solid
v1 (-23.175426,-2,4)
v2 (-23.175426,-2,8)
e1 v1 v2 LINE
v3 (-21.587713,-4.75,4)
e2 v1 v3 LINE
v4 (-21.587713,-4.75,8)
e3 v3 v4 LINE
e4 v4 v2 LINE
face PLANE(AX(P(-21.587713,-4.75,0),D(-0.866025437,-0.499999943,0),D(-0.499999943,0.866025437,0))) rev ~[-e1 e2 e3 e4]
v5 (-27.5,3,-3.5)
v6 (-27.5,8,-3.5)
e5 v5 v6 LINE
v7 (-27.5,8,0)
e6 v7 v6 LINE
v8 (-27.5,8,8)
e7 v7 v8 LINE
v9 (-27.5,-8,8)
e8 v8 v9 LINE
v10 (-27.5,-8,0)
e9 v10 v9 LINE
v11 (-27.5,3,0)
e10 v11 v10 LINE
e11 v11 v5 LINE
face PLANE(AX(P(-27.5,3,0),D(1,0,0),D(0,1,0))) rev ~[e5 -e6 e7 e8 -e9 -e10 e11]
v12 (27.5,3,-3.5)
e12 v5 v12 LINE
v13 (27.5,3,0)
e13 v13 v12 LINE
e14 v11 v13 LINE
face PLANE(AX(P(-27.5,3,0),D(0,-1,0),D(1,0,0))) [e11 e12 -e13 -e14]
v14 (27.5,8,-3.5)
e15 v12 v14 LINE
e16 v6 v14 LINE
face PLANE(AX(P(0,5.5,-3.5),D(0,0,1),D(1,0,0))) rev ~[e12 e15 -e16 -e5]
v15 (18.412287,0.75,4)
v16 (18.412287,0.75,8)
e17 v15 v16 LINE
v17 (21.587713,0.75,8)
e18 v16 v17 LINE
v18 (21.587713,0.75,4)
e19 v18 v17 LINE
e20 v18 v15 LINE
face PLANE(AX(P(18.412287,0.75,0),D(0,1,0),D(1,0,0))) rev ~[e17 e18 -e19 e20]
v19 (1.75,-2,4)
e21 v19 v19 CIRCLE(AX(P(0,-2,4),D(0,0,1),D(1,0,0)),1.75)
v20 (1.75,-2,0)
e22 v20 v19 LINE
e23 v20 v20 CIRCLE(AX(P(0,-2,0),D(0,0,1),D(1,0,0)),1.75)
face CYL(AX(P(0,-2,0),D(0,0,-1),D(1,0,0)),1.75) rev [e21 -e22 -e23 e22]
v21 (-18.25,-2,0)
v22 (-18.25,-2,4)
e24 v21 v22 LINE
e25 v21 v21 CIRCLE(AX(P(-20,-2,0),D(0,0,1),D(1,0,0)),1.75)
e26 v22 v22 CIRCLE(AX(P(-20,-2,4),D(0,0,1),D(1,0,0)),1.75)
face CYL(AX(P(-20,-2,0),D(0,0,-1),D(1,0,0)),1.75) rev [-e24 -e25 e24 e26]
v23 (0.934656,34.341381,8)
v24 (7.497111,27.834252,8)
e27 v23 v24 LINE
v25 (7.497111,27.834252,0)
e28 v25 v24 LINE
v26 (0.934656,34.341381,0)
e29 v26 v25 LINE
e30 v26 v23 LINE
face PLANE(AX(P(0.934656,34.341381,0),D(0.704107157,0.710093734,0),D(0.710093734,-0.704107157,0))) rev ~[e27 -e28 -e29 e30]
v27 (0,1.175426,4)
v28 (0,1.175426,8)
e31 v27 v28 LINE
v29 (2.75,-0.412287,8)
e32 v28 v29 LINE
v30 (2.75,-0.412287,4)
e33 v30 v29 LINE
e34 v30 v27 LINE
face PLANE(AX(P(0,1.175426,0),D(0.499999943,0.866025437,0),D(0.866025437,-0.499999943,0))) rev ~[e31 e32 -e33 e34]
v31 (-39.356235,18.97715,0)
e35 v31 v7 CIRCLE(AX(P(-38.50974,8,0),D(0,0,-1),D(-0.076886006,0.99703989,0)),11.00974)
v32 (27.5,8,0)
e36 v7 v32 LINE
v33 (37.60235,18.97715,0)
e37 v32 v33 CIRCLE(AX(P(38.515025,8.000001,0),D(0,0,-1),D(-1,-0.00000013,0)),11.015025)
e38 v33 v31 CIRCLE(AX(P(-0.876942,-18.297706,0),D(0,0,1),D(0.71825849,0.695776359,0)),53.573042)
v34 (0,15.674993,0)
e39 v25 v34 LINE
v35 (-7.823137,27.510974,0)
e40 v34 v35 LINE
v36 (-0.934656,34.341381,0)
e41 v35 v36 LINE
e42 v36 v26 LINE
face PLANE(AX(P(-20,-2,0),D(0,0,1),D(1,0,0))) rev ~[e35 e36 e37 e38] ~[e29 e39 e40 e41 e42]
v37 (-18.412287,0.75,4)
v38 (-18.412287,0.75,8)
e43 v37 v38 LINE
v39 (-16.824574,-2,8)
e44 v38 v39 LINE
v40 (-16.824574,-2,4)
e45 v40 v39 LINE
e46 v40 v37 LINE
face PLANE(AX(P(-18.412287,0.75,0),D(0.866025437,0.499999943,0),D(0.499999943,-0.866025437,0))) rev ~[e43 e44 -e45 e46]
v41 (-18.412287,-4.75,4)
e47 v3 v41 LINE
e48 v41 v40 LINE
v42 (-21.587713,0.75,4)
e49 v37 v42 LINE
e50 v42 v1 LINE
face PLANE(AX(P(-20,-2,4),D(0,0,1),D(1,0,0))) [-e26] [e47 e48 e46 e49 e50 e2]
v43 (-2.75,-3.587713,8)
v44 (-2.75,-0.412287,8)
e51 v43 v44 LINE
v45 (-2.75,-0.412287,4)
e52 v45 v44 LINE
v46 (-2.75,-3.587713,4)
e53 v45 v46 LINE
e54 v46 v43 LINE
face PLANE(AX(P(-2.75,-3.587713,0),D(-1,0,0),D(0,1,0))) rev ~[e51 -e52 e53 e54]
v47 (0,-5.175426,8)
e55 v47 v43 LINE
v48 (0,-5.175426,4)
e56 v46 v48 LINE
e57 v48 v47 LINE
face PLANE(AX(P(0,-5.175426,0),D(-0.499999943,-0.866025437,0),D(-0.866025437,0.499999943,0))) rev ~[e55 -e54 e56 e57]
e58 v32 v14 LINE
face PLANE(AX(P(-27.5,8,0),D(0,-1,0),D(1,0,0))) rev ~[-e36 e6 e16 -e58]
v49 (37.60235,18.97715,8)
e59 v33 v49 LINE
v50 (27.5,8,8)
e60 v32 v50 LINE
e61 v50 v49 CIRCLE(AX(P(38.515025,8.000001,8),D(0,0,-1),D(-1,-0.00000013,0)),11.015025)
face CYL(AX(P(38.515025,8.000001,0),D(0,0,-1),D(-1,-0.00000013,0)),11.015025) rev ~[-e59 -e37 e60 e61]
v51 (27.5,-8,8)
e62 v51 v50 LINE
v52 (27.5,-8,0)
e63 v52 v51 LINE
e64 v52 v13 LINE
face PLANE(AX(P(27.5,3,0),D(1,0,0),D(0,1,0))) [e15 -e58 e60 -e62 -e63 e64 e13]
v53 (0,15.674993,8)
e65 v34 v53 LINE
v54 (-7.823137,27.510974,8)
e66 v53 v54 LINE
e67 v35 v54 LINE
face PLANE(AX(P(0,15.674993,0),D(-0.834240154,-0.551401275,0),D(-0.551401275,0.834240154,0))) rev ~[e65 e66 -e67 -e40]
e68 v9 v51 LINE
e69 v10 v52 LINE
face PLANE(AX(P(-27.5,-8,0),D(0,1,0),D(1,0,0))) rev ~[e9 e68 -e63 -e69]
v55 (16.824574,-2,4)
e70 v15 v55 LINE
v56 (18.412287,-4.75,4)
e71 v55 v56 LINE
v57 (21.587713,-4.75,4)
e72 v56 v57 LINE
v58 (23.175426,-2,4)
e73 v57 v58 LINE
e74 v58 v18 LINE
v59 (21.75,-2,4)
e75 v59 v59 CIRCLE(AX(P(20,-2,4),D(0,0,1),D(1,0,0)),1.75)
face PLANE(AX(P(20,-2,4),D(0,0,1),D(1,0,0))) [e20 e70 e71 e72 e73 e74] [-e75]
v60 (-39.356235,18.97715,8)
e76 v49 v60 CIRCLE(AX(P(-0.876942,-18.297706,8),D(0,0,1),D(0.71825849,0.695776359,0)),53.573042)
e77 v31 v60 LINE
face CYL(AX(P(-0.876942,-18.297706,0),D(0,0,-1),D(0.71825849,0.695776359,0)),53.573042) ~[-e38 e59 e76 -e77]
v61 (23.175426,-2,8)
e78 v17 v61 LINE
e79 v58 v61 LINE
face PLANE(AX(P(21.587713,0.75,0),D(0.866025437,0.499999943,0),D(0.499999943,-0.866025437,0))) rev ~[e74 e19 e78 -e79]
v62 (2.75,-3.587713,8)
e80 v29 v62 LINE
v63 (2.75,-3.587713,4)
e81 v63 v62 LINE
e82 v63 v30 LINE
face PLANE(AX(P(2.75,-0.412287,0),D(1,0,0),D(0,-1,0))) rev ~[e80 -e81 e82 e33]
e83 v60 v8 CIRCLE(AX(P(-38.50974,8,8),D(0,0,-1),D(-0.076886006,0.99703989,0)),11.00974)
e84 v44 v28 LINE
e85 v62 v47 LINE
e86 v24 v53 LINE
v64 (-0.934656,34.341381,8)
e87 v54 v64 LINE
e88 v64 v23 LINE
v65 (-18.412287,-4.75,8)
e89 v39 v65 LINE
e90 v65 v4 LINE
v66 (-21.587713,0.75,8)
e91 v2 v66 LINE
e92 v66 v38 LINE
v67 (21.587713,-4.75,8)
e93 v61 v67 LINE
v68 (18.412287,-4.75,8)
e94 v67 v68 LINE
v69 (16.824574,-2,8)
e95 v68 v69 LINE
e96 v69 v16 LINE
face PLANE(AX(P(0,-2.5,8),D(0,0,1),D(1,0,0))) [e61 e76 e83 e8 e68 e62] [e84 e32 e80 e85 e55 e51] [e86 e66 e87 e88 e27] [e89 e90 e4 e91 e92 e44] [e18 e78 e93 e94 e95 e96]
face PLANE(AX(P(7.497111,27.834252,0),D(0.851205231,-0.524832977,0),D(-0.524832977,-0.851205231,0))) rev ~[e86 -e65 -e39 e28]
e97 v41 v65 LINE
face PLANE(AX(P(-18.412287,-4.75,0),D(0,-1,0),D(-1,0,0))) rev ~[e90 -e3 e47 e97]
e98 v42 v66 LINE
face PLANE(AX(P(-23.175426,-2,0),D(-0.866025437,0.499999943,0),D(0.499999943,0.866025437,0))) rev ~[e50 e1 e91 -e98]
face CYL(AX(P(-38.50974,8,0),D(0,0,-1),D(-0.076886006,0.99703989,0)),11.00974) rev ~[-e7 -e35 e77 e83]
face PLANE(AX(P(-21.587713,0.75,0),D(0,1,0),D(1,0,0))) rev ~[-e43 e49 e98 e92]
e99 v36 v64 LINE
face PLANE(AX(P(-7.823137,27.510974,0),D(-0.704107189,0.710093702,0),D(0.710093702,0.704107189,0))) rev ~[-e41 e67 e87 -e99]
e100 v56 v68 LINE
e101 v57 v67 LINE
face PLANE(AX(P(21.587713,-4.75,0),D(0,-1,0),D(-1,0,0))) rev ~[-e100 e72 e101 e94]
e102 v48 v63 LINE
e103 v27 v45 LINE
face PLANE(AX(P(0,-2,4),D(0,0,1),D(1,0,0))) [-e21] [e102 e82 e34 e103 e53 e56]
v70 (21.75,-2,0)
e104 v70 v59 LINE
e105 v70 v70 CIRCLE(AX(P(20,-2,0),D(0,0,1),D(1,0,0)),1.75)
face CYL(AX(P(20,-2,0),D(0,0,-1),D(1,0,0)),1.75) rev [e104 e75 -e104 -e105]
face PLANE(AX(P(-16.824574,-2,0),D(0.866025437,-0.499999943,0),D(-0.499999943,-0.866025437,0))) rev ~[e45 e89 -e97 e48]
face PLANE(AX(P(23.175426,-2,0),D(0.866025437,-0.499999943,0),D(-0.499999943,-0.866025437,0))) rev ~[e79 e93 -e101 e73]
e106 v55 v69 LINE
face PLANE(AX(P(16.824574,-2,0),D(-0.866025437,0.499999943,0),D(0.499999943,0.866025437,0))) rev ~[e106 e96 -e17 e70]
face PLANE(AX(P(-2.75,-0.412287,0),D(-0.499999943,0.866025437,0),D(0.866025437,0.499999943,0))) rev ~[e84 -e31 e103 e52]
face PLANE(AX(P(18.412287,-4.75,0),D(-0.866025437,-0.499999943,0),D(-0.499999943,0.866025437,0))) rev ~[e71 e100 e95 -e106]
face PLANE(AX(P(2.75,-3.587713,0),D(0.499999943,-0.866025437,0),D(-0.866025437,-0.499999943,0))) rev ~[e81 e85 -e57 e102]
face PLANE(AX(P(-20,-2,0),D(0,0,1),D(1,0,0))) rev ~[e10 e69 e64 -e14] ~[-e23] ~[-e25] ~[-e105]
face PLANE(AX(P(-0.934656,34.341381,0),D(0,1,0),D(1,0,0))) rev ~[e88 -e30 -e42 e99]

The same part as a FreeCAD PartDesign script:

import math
import FreeCAD as App
import Part
import Sketcher

V = App.Vector
Q = App.Units.Quantity


def add_polygon(sketch, points):
    """Adds a closed chain of lines whose ends are joined by coincident constraints."""
    first, n = sketch.GeometryCount, len(points)
    for a, b in zip(points, points[1:] + points[:1]):
        sketch.addGeometry(Part.LineSegment(App.Vector(*a, 0), App.Vector(*b, 0)), False)
    for i in range(n):
        sketch.addConstraint(Sketcher.Constraint("Coincident", first + i, 2, first + (i + 1) % n, 1))

doc = App.newDocument("Part")
params = doc.addObject("Spreadsheet::Sheet", "Params")
for row, (alias, value) in enumerate([
    ("sketch1_width", "55 mm"),
    ("sketch1_height", "16 mm"),
    ("pad1_length", "8 mm"),
    ("sketch2_diameter", "3.5 mm"),
    ("pad2_length", "4 mm"),
    ("sketch3_width", "55 mm"),
    ("sketch3_height", "5 mm"),
    ("pad3_length", "3.5 mm"),
], start=1):
    params.set(f"A{row}", alias)
    params.set(f"B{row}", "=" + value)
    params.setAlias(f"B{row}", alias)

body = doc.addObject("PartDesign::Body", "Body")

# Sketch on XY plane
sketch1 = doc.addObject("Sketcher::SketchObject", "Sketch")
body.addObject(sketch1)
sketch1.AttachmentSupport = (doc.XY_Plane, [""])
sketch1.MapMode = "FlatFace"
sketch1.addGeometry(Part.LineSegment(V(-27.5, 8, 0), V(-27.5, -8, 0)), False)  # 0
sketch1.addGeometry(Part.LineSegment(V(-27.5, -8, 0), V(27.5, -8, 0)), False)  # 1
sketch1.addGeometry(Part.LineSegment(V(27.5, -8, 0), V(27.5, 8, 0)), False)  # 2
sketch1.addGeometry(Part.ArcOfCircle(Part.Circle(V(38.515025, 8.000001, 0), V(0, 0, 1), 11.015025), math.radians(94.752819), math.radians(180.000007)), False)  # 3
sketch1.addGeometry(Part.ArcOfCircle(Part.Circle(V(-0.876942, -18.297706, 0), V(0, 0, 1), 53.573042), math.radians(44.089115), math.radians(135.910885)), False)  # 4
sketch1.addGeometry(Part.ArcOfCircle(Part.Circle(V(-38.50974, 8, 0), V(0, 0, 1), 11.00974), math.radians(0), math.radians(94.409595)), False)  # 5
add_polygon(sketch1, [(0, 15.674993), (-7.823137, 27.510974), (-0.934656, 34.341381), (0.934656, 34.341381), (7.497111, 27.834252)])  # lines 6-10
add_polygon(sketch1, [(-18.412287, 0.75), (-16.824574, -2), (-18.412287, -4.75), (-21.587713, -4.75), (-23.175426, -2), (-21.587713, 0.75)])  # lines 11-16
add_polygon(sketch1, [(-2.75, -0.412287), (0, 1.175426), (2.75, -0.412287), (2.75, -3.587713), (0, -5.175426), (-2.75, -3.587713)])  # lines 17-22
add_polygon(sketch1, [(21.587713, -4.75), (18.412287, -4.75), (16.824574, -2), (18.412287, 0.75), (21.587713, 0.75), (23.175426, -2)])  # lines 23-28
sketch1.addConstraint(Sketcher.Constraint("Coincident", 0, 2, 1, 1))
sketch1.addConstraint(Sketcher.Constraint("Coincident", 1, 2, 2, 1))
sketch1.addConstraint(Sketcher.Constraint("Tangent", 2, 2, 3, 2))
sketch1.addConstraint(Sketcher.Constraint("Coincident", 3, 1, 4, 1))
sketch1.addConstraint(Sketcher.Constraint("Coincident", 4, 2, 5, 2))
sketch1.addConstraint(Sketcher.Constraint("Tangent", 5, 1, 0, 1))
sketch1.addConstraint(Sketcher.Constraint("Vertical", 0))
sketch1.addConstraint(Sketcher.Constraint("Horizontal", 1))
sketch1.addConstraint(Sketcher.Constraint("Vertical", 2))
sketch1.addConstraint(Sketcher.Constraint("Horizontal", 8))
sketch1.addConstraint(Sketcher.Constraint("Horizontal", 13))
sketch1.addConstraint(Sketcher.Constraint("Horizontal", 16))
sketch1.addConstraint(Sketcher.Constraint("Vertical", 19))
sketch1.addConstraint(Sketcher.Constraint("Vertical", 22))
sketch1.addConstraint(Sketcher.Constraint("Horizontal", 23))
sketch1.addConstraint(Sketcher.Constraint("Horizontal", 26))
sketch1.addConstraint(Sketcher.Constraint("Symmetric", 0, 2, 2, 2, -1, 1))
sketch1.addConstraint(Sketcher.Constraint("Symmetric", 19, 2, 21, 2, -2))
sketch1.addConstraint(Sketcher.Constraint("Symmetric", 12, 2, 23, 2, -2))
sketch1.addConstraint(Sketcher.Constraint("Symmetric", 11, 2, 24, 2, -2))
sketch1.addConstraint(Sketcher.Constraint("Symmetric", 16, 2, 25, 2, -2))
sketch1.addConstraint(Sketcher.Constraint("Symmetric", 14, 2, 27, 2, -2))
sketch1.addConstraint(Sketcher.Constraint("PointOnObject", 10, 2, -2))
sketch1.addConstraint(Sketcher.Constraint("PointOnObject", 17, 2, -2))
sketch1.addConstraint(Sketcher.Constraint("PointOnObject", 20, 2, -2))
sketch1.addConstraint(Sketcher.Constraint("Parallel", 11, 14))
sketch1.addConstraint(Sketcher.Constraint("Parallel", 12, 15))
sketch1.addConstraint(Sketcher.Constraint("Perpendicular", 14, 17))
sketch1.addConstraint(Sketcher.Constraint("Perpendicular", 15, 18))
sketch1.addConstraint(Sketcher.Constraint("Parallel", 17, 20))
sketch1.addConstraint(Sketcher.Constraint("Parallel", 18, 21))
sketch1.addConstraint(Sketcher.Constraint("Parallel", 24, 27))
sketch1.addConstraint(Sketcher.Constraint("Parallel", 25, 28))
sketch1.addConstraint(Sketcher.Constraint("Horizontal", 3, 3, 5, 3))
sketch1.addConstraint(Sketcher.Constraint("Horizontal", 3, 1, 4, 2))
sketch1.addConstraint(Sketcher.Constraint("Horizontal", 11, 2, 14, 2))
sketch1.addConstraint(Sketcher.Constraint("Vertical", 13, 2, 15, 2))
sketch1.addConstraint(Sketcher.Constraint("Equal", 26, 19))
sketch1.addConstraint(Sketcher.Constraint("Equal", 15, 17))
sketch1.addConstraint(Sketcher.Constraint("DistanceX", 1, 1, 1, 2, Q("55 mm")))
sketch1.addConstraint(Sketcher.Constraint("DistanceY", 0, 2, 0, 1, Q("16 mm")))
sketch1.addConstraint(Sketcher.Constraint("Angle", 11, Q("-60.000004 deg")))
sketch1.addConstraint(Sketcher.Constraint("DistanceY", 11, 2, -1, 1, Q("2 mm")))
sketch1.addConstraint(Sketcher.Constraint("DistanceY", 13, 2, 15, 2, Q("5.5 mm")))
sketch1.addConstraint(Sketcher.Constraint("Radius", 5, Q("11.00974 mm")))
sketch1.addConstraint(Sketcher.Constraint("Radius", 3, Q("11.015025 mm")))
sketch1.addConstraint(Sketcher.Constraint("Radius", 4, Q("53.573042 mm")))
sketch1.addConstraint(Sketcher.Constraint("DistanceX", 4, 2, 6, 2, Q("31.533098 mm")))
sketch1.addConstraint(Sketcher.Constraint("Distance", 6, Q("14.187738 mm")))
sketch1.addConstraint(Sketcher.Constraint("DistanceX", 8, 1, 8, 2, Q("1.869312 mm")))
sketch1.addConstraint(Sketcher.Constraint("DistanceX", 13, 2, 13, 1, Q("3.175426 mm")))
sketch1.addConstraint(Sketcher.Constraint("DistanceX", -1, 1, 3, 1, Q("37.60235 mm")))
sketch1.addConstraint(Sketcher.Constraint("DistanceY", -1, 1, 7, 2, Q("34.341381 mm")))
sketch1.addConstraint(Sketcher.Constraint("DistanceX", -1, 1, 9, 2, Q("7.497111 mm")))
sketch1.addConstraint(Sketcher.Constraint("DistanceY", -1, 1, 9, 2, Q("27.834252 mm")))
sketch1.addConstraint(Sketcher.Constraint("DistanceX", 6, 2, 7, 2, Q("6.888481 mm")))
sketch1.addConstraint(Sketcher.Constraint("DistanceY", 10, 2, 9, 2, Q("12.159259 mm")))
sketch1.addConstraint(Sketcher.Constraint("DistanceX", 11, 2, 4, 3, Q("15.947631 mm")))
sketch1.addConstraint(Sketcher.Constraint("DistanceY", 18, 2, 10, 2, Q("16.08728 mm")))
sketch1.setExpression("Constraints[62]", "Params.sketch1_width")
sketch1.setExpression("Constraints[63]", "Params.sketch1_height")
pad1 = doc.addObject("PartDesign::Pad", "Pad")
body.addObject(pad1)
pad1.Profile = sketch1
pad1.setExpression("Length", "Params.pad1_length")

# Sketch on XY plane
sketch2 = doc.addObject("Sketcher::SketchObject", "Sketch001")
body.addObject(sketch2)
sketch2.AttachmentSupport = (doc.XY_Plane, [""])
sketch2.MapMode = "FlatFace"
add_polygon(sketch2, [(-21.587713, -4.75), (-18.412287, -4.75), (-16.824574, -2), (-18.412287, 0.75), (-21.587713, 0.75), (-23.175426, -2)])  # lines 0-5
sketch2.addGeometry(Part.Circle(V(-20, -2, 0), V(0, 0, 1), 1.75), False)  # 6
add_polygon(sketch2, [(2.75, -3.587713), (2.75, -0.412287), (0, 1.175426), (-2.75, -0.412287), (-2.75, -3.587713), (0, -5.175426)])  # lines 7-12
sketch2.addGeometry(Part.Circle(V(0, -2, 0), V(0, 0, 1), 1.75), False)  # 13
add_polygon(sketch2, [(18.412287, 0.75), (16.824574, -2), (18.412287, -4.75), (21.587713, -4.75), (23.175426, -2), (21.587713, 0.75)])  # lines 14-19
sketch2.addGeometry(Part.Circle(V(20, -2, 0), V(0, 0, 1), 1.75), False)  # 20
sketch2.addConstraint(Sketcher.Constraint("Horizontal", 0))
sketch2.addConstraint(Sketcher.Constraint("Horizontal", 3))
sketch2.addConstraint(Sketcher.Constraint("Vertical", 7))
sketch2.addConstraint(Sketcher.Constraint("Vertical", 10))
sketch2.addConstraint(Sketcher.Constraint("Horizontal", 16))
sketch2.addConstraint(Sketcher.Constraint("Horizontal", 19))
sketch2.addConstraint(Sketcher.Constraint("Equal", 6, 13))
sketch2.addConstraint(Sketcher.Constraint("Equal", 13, 20))
sketch2.addConstraint(Sketcher.Constraint("Symmetric", 6, 3, 20, 3, -2))
sketch2.addConstraint(Sketcher.Constraint("Symmetric", 7, 2, 9, 2, -2))
sketch2.addConstraint(Sketcher.Constraint("Symmetric", 1, 2, 14, 2, -2))
sketch2.addConstraint(Sketcher.Constraint("Symmetric", 0, 2, 15, 2, -2))
sketch2.addConstraint(Sketcher.Constraint("Symmetric", 4, 2, 17, 2, -2))
sketch2.addConstraint(Sketcher.Constraint("Symmetric", 3, 2, 18, 2, -2))
sketch2.addConstraint(Sketcher.Constraint("PointOnObject", 13, 3, -2))
sketch2.addConstraint(Sketcher.Constraint("PointOnObject", 8, 2, -2))
sketch2.addConstraint(Sketcher.Constraint("PointOnObject", 11, 2, -2))
sketch2.addConstraint(Sketcher.Constraint("Parallel", 1, 4))
sketch2.addConstraint(Sketcher.Constraint("Parallel", 2, 5))
sketch2.addConstraint(Sketcher.Constraint("Perpendicular", 4, 8))
sketch2.addConstraint(Sketcher.Constraint("Perpendicular", 5, 9))
sketch2.addConstraint(Sketcher.Constraint("Parallel", 8, 11))
sketch2.addConstraint(Sketcher.Constraint("Parallel", 9, 12))
sketch2.addConstraint(Sketcher.Constraint("Perpendicular", 11, 14))
sketch2.addConstraint(Sketcher.Constraint("Parallel", 14, 17))
sketch2.addConstraint(Sketcher.Constraint("Horizontal", 6, 3, 13, 3))
sketch2.addConstraint(Sketcher.Constraint("Horizontal", 20, 3, 1, 2))
sketch2.addConstraint(Sketcher.Constraint("Horizontal", 1, 2, 4, 2))
sketch2.addConstraint(Sketcher.Constraint("Vertical", 0, 2, 2, 2))
sketch2.addConstraint(Sketcher.Constraint("Equal", 19, 7))
sketch2.addConstraint(Sketcher.Constraint("Equal", 5, 8))
sketch2.addConstraint(Sketcher.Constraint("Diameter", 6, Q("3.5 mm")))
sketch2.addConstraint(Sketcher.Constraint("Angle", 1, Q("60.000004 deg")))
sketch2.addConstraint(Sketcher.Constraint("DistanceX", 6, 3, -1, 1, Q("20 mm")))
sketch2.addConstraint(Sketcher.Constraint("DistanceY", 6, 3, -1, 1, Q("2 mm")))
sketch2.addConstraint(Sketcher.Constraint("DistanceY", 0, 2, 2, 2, Q("5.5 mm")))
sketch2.addConstraint(Sketcher.Constraint("DistanceX", 0, 1, 0, 2, Q("3.175426 mm")))
sketch2.addConstraint(Sketcher.Constraint("DistanceX", 0, 2, -1, 1, Q("18.412287 mm")))
sketch2.addConstraint(Sketcher.Constraint("DistanceY", 7, 2, -1, 1, Q("0.412287 mm")))
sketch2.setExpression("Constraints[49]", "Params.sketch2_diameter")
pad2 = doc.addObject("PartDesign::Pad", "Pad001")
body.addObject(pad2)
pad2.Profile = sketch2
pad2.setExpression("Length", "Params.pad2_length")

# Sketch on XY plane
sketch3 = doc.addObject("Sketcher::SketchObject", "Sketch002")
body.addObject(sketch3)
sketch3.AttachmentSupport = (doc.XY_Plane, [""])
sketch3.MapMode = "FlatFace"
add_polygon(sketch3, [(-27.5, 8), (-27.5, 3), (27.5, 3), (27.5, 8)])  # lines 0-3
sketch3.addConstraint(Sketcher.Constraint("Vertical", 0))
sketch3.addConstraint(Sketcher.Constraint("Horizontal", 1))
sketch3.addConstraint(Sketcher.Constraint("Vertical", 2))
sketch3.addConstraint(Sketcher.Constraint("Horizontal", 3))
sketch3.addConstraint(Sketcher.Constraint("DistanceX", 1, 1, 1, 2, Q("55 mm")))
sketch3.addConstraint(Sketcher.Constraint("DistanceY", 0, 2, 0, 1, Q("5 mm")))
sketch3.addConstraint(Sketcher.Constraint("DistanceY", -1, 1, 0, 2, Q("3 mm")))
sketch3.addConstraint(Sketcher.Constraint("DistanceX", 0, 2, -1, 1, Q("27.5 mm")))
sketch3.setExpression("Constraints[8]", "Params.sketch3_width")
sketch3.setExpression("Constraints[9]", "Params.sketch3_height")
pad3 = doc.addObject("PartDesign::Pad", "Pad002")
body.addObject(pad3)
pad3.Profile = sketch3
pad3.setExpression("Length", "Params.pad3_length")
pad3.Reversed = True

doc.recompute()
